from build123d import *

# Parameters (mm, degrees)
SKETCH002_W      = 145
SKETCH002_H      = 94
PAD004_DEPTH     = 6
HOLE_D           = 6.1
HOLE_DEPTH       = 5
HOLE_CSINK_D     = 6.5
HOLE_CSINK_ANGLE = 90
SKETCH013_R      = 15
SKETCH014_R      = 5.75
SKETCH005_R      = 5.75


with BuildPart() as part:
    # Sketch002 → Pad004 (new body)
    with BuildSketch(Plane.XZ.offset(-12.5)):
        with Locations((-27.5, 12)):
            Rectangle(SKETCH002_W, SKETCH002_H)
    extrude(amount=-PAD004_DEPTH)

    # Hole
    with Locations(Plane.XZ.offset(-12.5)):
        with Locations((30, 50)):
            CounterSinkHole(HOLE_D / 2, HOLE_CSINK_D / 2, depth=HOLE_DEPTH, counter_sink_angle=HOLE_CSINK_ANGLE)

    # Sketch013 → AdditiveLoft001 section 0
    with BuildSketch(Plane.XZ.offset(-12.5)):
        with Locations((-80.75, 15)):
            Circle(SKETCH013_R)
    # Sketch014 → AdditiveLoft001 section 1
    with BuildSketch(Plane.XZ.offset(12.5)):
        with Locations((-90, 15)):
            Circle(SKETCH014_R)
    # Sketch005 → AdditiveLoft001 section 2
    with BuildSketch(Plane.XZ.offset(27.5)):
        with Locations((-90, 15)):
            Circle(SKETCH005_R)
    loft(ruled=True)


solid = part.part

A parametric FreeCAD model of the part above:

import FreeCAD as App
import Part
import Sketcher
Q = App.Units.Quantity


def add_polygon(sketch, points):
    """Adds a closed chain of lines whose ends are joined by coincident constraints."""
    first, n = sketch.GeometryCount, len(points)
    for a, b in zip(points, points[1:] + points[:1]):
        sketch.addGeometry(Part.LineSegment(App.Vector(*a, 0), App.Vector(*b, 0)), False)
    for i in range(n):
        sketch.addConstraint(Sketcher.Constraint("Coincident", first + i, 2, first + (i + 1) % n, 1))

doc = App.newDocument("Part")
body = doc.addObject("PartDesign::Body", "Body")

sketch1 = body.newObject("Sketcher::SketchObject", "Sketch")
sketch1.AttachmentSupport = (doc.getObject("XZ_Plane"), [""])
sketch1.MapMode = "FlatFace"
sketch1.AttachmentOffset = App.Placement(App.Vector(0, 0, -12.5), App.Rotation())
add_polygon(sketch1, [(-100, 59), (-100, -35), (45, -35), (45, 59)])
sketch1.addConstraint([
    Sketcher.Constraint("Vertical", 0),
    Sketcher.Constraint("Horizontal", 1),
    Sketcher.Constraint("Vertical", 2),
    Sketcher.Constraint("Horizontal", 3),
    Sketcher.Constraint("DistanceX", 1, 1, 1, 2, Q("145 mm")),
    Sketcher.Constraint("DistanceY", 0, 2, 0, 1, Q("94 mm")),
    Sketcher.Constraint("DistanceX", 0, 2, -1, 1, Q("100 mm")),
    Sketcher.Constraint("DistanceY", 0, 2, -1, 1, Q("35 mm")),
])
pad1 = body.newObject("PartDesign::Pad", "Pad")
pad1.Profile = sketch1
pad1.Length = 6
pad1.Reversed = True

sketch2 = body.newObject("Sketcher::SketchObject", "Sketch001")
sketch2.AttachmentSupport = (doc.getObject("XZ_Plane"), [""])
sketch2.MapMode = "FlatFace"
sketch2.AttachmentOffset = App.Placement(App.Vector(0, 0, -12.5), App.Rotation())
sketch2.addGeometry(Part.Circle(App.Vector(30, 50, 0), App.Vector(0, 0, 1), 3), False)
sketch2.addConstraint([
    Sketcher.Constraint("Diameter", 0, Q("6.1 mm")),
    Sketcher.Constraint("DistanceX", -1, 1, 0, 3, Q("30 mm")),
    Sketcher.Constraint("DistanceY", -1, 1, 0, 3, Q("50 mm")),
])
doc.recompute()
hole = body.newObject("PartDesign::Hole", "Hole")
hole.Profile = sketch2
hole.ThreadType = "None"
hole.Diameter = 6.1
hole.DepthType = "Dimension"
hole.Depth = 5
hole.DrillPoint = "Flat"
hole.HoleCutType = "Countersink"
hole.HoleCutDiameter = 6.5
hole.HoleCutCountersinkAngle = 90

sketch3 = body.newObject("Sketcher::SketchObject", "Sketch002")
sketch3.AttachmentSupport = (doc.getObject("XZ_Plane"), [""])
sketch3.MapMode = "FlatFace"
sketch3.AttachmentOffset = App.Placement(App.Vector(0, 0, -12.5), App.Rotation())
sketch3.addGeometry(Part.Circle(App.Vector(-81, 15, 0), App.Vector(0, 0, 1), 15), False)
sketch3.addConstraint([
    Sketcher.Constraint("Diameter", 0, Q("30 mm")),
    Sketcher.Constraint("DistanceY", -1, 1, 0, 3, Q("15 mm")),
    Sketcher.Constraint("DistanceX", 0, 3, -1, 1, Q("80.75 mm")),
])

sketch4 = body.newObject("Sketcher::SketchObject", "Sketch003")
sketch4.AttachmentSupport = (doc.getObject("XZ_Plane"), [""])
sketch4.MapMode = "FlatFace"
sketch4.AttachmentOffset = App.Placement(App.Vector(0, 0, 12.5), App.Rotation())
sketch4.addGeometry(Part.Circle(App.Vector(-90, 15, 0), App.Vector(0, 0, 1), 6), False)
sketch4.addConstraint([
    Sketcher.Constraint("Diameter", 0, Q("11.5 mm")),
    Sketcher.Constraint("DistanceX", 0, 3, -1, 1, Q("90 mm")),
    Sketcher.Constraint("DistanceY", -1, 1, 0, 3, Q("15 mm")),
])

sketch5 = body.newObject("Sketcher::SketchObject", "Sketch004")
sketch5.AttachmentSupport = (doc.getObject("XZ_Plane"), [""])
sketch5.MapMode = "FlatFace"
sketch5.AttachmentOffset = App.Placement(App.Vector(0, 0, 27.5), App.Rotation())
sketch5.addGeometry(Part.Circle(App.Vector(-90, 15, 0), App.Vector(0, 0, 1), 6), False)
sketch5.addConstraint([
    Sketcher.Constraint("Diameter", 0, Q("11.5 mm")),
    Sketcher.Constraint("DistanceX", 0, 3, -1, 1, Q("90 mm")),
    Sketcher.Constraint("DistanceY", -1, 1, 0, 3, Q("15 mm")),
])

additiveloft = body.newObject("PartDesign::AdditiveLoft", "AdditiveLoft")
additiveloft.Profile = sketch3
additiveloft.Sections = [sketch4, sketch5]
additiveloft.Ruled = True

doc.recompute()
